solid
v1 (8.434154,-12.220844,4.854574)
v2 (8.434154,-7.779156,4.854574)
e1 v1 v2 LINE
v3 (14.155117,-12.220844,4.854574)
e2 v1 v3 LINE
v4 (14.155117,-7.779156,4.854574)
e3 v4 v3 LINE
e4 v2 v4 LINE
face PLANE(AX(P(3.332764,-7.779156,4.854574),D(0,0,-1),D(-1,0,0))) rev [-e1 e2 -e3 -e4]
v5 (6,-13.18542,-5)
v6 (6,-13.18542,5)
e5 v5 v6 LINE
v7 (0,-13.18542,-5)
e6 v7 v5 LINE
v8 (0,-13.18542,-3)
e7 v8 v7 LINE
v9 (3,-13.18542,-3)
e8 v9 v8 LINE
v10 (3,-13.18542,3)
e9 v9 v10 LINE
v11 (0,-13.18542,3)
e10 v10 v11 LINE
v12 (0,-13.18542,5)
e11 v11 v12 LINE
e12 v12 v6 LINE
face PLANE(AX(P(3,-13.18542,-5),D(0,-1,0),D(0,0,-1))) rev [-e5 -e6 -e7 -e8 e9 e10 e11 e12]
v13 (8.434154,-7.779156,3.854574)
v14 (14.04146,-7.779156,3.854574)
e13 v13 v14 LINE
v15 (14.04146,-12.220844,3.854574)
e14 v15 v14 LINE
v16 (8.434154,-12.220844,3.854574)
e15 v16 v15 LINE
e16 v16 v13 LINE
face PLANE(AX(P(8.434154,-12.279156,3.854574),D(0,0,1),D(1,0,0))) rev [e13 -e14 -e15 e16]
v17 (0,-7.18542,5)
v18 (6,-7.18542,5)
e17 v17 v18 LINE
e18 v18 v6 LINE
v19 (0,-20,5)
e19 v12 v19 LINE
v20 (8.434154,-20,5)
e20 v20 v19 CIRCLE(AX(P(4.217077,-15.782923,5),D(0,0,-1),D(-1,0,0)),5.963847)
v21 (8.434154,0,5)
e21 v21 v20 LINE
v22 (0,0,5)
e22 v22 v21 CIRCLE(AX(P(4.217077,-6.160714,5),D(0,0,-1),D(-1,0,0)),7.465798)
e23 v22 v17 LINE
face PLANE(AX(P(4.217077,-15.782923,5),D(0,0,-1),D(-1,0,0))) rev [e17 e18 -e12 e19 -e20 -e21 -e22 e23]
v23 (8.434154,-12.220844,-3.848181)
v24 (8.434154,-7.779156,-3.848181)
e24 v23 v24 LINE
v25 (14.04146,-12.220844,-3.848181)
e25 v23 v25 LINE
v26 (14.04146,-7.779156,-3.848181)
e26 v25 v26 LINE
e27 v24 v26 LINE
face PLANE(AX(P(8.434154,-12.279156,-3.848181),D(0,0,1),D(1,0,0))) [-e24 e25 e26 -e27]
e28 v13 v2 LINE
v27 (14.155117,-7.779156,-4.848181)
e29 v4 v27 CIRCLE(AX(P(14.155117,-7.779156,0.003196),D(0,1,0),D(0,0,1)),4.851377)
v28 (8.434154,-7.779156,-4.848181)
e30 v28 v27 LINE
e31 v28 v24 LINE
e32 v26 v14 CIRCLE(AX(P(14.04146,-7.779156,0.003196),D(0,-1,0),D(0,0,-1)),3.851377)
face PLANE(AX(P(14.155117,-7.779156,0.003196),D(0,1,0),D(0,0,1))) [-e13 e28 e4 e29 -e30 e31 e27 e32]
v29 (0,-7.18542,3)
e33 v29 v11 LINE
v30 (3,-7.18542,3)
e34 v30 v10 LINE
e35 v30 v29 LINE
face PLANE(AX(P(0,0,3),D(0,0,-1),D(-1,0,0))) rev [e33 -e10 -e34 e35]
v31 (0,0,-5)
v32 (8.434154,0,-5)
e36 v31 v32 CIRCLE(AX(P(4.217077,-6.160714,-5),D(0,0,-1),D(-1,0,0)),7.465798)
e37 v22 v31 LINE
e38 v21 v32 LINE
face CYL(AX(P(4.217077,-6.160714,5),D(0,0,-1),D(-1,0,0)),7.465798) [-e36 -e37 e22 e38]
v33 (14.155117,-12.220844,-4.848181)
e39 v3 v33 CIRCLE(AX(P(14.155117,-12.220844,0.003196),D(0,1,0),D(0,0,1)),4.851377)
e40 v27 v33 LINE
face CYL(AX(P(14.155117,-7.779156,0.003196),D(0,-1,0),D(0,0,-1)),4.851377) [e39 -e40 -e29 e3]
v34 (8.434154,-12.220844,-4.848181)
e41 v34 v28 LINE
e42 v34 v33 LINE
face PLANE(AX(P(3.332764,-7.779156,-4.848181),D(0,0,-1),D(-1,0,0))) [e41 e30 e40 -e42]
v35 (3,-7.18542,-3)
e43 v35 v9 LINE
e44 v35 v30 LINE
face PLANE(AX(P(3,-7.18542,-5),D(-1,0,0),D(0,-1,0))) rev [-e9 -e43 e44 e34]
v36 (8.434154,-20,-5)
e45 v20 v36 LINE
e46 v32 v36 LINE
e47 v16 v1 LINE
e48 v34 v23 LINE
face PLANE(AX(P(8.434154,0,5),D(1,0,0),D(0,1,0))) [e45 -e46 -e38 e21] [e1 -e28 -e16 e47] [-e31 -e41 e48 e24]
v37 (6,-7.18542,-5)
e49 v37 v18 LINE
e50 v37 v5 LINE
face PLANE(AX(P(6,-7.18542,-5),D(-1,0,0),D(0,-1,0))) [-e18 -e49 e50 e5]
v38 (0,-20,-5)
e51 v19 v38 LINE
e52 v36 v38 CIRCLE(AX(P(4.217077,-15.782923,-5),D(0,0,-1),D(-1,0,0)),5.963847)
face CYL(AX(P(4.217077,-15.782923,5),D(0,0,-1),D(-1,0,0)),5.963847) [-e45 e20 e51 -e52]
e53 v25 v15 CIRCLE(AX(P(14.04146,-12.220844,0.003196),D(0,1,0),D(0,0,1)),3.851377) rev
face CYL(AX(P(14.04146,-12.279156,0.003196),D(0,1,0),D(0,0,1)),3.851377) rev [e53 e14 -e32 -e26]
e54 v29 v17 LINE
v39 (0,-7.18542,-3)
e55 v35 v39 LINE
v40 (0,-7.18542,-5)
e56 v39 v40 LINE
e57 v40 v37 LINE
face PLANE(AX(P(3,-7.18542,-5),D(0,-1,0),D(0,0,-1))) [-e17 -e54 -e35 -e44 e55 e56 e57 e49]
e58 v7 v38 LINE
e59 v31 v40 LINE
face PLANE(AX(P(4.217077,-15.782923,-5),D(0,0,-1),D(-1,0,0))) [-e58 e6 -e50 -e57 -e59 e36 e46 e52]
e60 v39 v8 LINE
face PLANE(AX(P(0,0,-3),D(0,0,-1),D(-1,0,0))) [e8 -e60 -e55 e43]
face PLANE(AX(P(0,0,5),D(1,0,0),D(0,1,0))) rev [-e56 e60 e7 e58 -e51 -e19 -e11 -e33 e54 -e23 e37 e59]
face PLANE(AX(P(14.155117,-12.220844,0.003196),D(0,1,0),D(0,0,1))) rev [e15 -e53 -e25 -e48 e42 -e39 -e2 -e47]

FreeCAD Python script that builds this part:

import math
import FreeCAD as App
import Part
import Sketcher
from FreeCAD import Vector


def add_polygon(sketch, points):
    """Adds a closed chain of lines whose ends are joined by coincident constraints."""
    first, n = sketch.GeometryCount, len(points)
    for a, b in zip(points, points[1:] + points[:1]):
        sketch.addGeometry(Part.LineSegment(App.Vector(*a, 0), App.Vector(*b, 0)), False)
    for i in range(n):
        sketch.addConstraint(Sketcher.Constraint("Coincident", first + i, 2, first + (i + 1) % n, 1))

doc = App.newDocument("Part")
body = doc.addObject("PartDesign::Body", "Body")

sketch1 = body.newObject("Sketcher::SketchObject", "Sketch")
sketch1.AttachmentSupport = (doc.getObject("XY_Plane"), [""])
sketch1.MapMode = "FlatFace"
sketch1.addGeometry([
    Part.LineSegment(Vector(0, 0, 0), Vector(0, -20, 0)),
    Part.ArcOfCircle(Part.Circle(Vector(4.217077, -15.782923, 0), Vector(0, 0, 1), 5.963847), math.radians(-135), math.radians(-45)),
    Part.LineSegment(Vector(8.434154, -20, 0), Vector(8.434154, 0, 0)),
    Part.ArcOfCircle(Part.Circle(Vector(4.217077, -6.160714, 0), Vector(0, 0, 1), 7.465798), math.radians(55.607929), math.radians(124.392071)),
], False)
sketch1.addConstraint([
    Sketcher.Constraint("Coincident", 0, 2, 1, 1),
    Sketcher.Constraint("Coincident", 1, 2, 2, 1),
    Sketcher.Constraint("Coincident", 2, 2, 3, 1),
    Sketcher.Constraint("Coincident", 3, 2, 0, 1),
    Sketcher.Constraint("Vertical", 0),
    Sketcher.Constraint("Vertical", 2),
    Sketcher.Constraint("Coincident", 3, 2, -1, 1),
    Sketcher.Constraint("PointOnObject", 2, 2, -1),
    Sketcher.Constraint("Horizontal", 0, 2, 1, 2),
    Sketcher.Constraint("DistanceY", 0, 2, 0, 1, 20.0),
    Sketcher.Constraint("Radius", 1, 5.963847),
    Sketcher.Constraint("Radius", 3, 7.465798),
    Sketcher.Constraint("DistanceY", 1, 3, 3, 3, 9.622209),
])
pad1 = body.newObject("PartDesign::Pad", "Pad")
pad1.Profile = sketch1
pad1.Length = 10
pad1.Midplane = True

sketch2 = body.newObject("Sketcher::SketchObject", "Sketch001")
sketch2.AttachmentSupport = (doc.getObject("XZ_Plane"), [""])
sketch2.MapMode = "FlatFace"
sketch2.AttachmentOffset = App.Placement(Vector(0, 0, 10), App.Rotation())
sketch2.addGeometry([
    Part.LineSegment(Vector(14.155117, -4.848181, 0), Vector(3.332764, -4.848181, 0)),
    Part.LineSegment(Vector(3.332764, -4.848181, 0), Vector(3.332764, 4.854574, 0)),
    Part.LineSegment(Vector(3.332764, 4.854574, 0), Vector(14.155117, 4.854574, 0)),
    Part.ArcOfCircle(Part.Circle(Vector(14.155117, 0.003196, 0), Vector(0, 0, 1), 4.851377), math.radians(-90), math.radians(90)),
], False)
sketch2.addConstraint([
    Sketcher.Constraint("Coincident", 0, 2, 1, 1),
    Sketcher.Constraint("Coincident", 1, 2, 2, 1),
    Sketcher.Constraint("Tangent", 2, 2, 3, 2),
    Sketcher.Constraint("Tangent", 3, 1, 0, 1),
    Sketcher.Constraint("Horizontal", 0),
    Sketcher.Constraint("Vertical", 1),
    Sketcher.Constraint("Horizontal", 2),
    Sketcher.Constraint("Radius", 3, 4.851377),
    Sketcher.Constraint("DistanceX", 0, 2, 0, 1, 10.822352),
    Sketcher.Constraint("DistanceY", 0, 2, -1, 1, 4.848181),
    Sketcher.Constraint("DistanceX", -1, 1, 3, 3, 14.155117),
])
pad2 = body.newObject("PartDesign::Pad", "Pad001")
pad2.Profile = sketch2
pad2.Length = 4.441689
pad2.Midplane = True

sketch3 = body.newObject("Sketcher::SketchObject", "Sketch002")
sketch3.AttachmentSupport = (doc.getObject("XZ_Plane"), [""])
sketch3.MapMode = "FlatFace"
sketch3.AttachmentOffset = App.Placement(Vector(0, 0, 7.779156), App.Rotation())
sketch3.addGeometry([
    Part.LineSegment(Vector(14.04146, -3.848181, 0), Vector(8.434154, -3.848181, 0)),
    Part.LineSegment(Vector(8.434154, -3.848181, 0), Vector(8.434154, 3.854574, 0)),
    Part.LineSegment(Vector(8.434154, 3.854574, 0), Vector(14.04146, 3.854574, 0)),
    Part.ArcOfCircle(Part.Circle(Vector(14.04146, 0.003196, 0), Vector(0, 0, 1), 3.851377), math.radians(-90), math.radians(90)),
], False)
sketch3.addConstraint([
    Sketcher.Constraint("Coincident", 0, 2, 1, 1),
    Sketcher.Constraint("Coincident", 1, 2, 2, 1),
    Sketcher.Constraint("Tangent", 2, 2, 3, 2),
    Sketcher.Constraint("Tangent", 3, 1, 0, 1),
    Sketcher.Constraint("Horizontal", 0),
    Sketcher.Constraint("Vertical", 1),
    Sketcher.Constraint("Horizontal", 2),
    Sketcher.Constraint("Radius", 3, 3.851377),
    Sketcher.Constraint("DistanceX", 0, 2, 0, 1, 5.607306),
    Sketcher.Constraint("DistanceX", -1, 1, 3, 3, 14.04146),
    Sketcher.Constraint("DistanceY", 0, 2, -1, 1, 3.848181),
])
pocket1 = body.newObject("PartDesign::Pocket", "Pocket")
pocket1.Profile = sketch3
pocket1.Length = 4.5
pocket1.Reversed = True

sketch4 = body.newObject("Sketcher::SketchObject", "Sketch003")
sketch4.AttachmentSupport = (doc.getObject("XY_Plane"), [""])
sketch4.MapMode = "FlatFace"
sketch4.AttachmentOffset = App.Placement(Vector(0, 0, 5), App.Rotation())
add_polygon(sketch4, [(3, -7.18542), (3, -13.18542), (6, -13.18542), (6, -7.18542)])
sketch4.addConstraint([
    Sketcher.Constraint("Vertical", 0),
    Sketcher.Constraint("Horizontal", 1),
    Sketcher.Constraint("Vertical", 2),
    Sketcher.Constraint("Horizontal", 3),
    Sketcher.Constraint("DistanceX", 1, 1, 1, 2, 3.0),
    Sketcher.Constraint("DistanceY", 0, 2, 0, 1, 6.0),
    Sketcher.Constraint("DistanceX", -1, 1, 0, 2, 3.0),
    Sketcher.Constraint("DistanceY", 0, 2, -1, 1, 13.18542),
])
pocket2 = body.newObject("PartDesign::Pocket", "Pocket001")
pocket2.Profile = sketch4
pocket2.Length = 10

sketch5 = body.newObject("Sketcher::SketchObject", "Sketch004")
sketch5.AttachmentSupport = (doc.getObject("XY_Plane"), [""])
sketch5.MapMode = "FlatFace"
sketch5.AttachmentOffset = App.Placement(Vector(0, 0, -5), App.Rotation())
add_polygon(sketch5, [(3, -7.18542), (3, -13.18542), (0, -13.18542), (0, -7.18542)])
sketch5.addConstraint([
    Sketcher.Constraint("Vertical", 0),
    Sketcher.Constraint("Horizontal", 1),
    Sketcher.Constraint("Vertical", 2),
    Sketcher.Constraint("Horizontal", 3),
    Sketcher.Constraint("PointOnObject", 1, 2, -2),
    Sketcher.Constraint("DistanceX", 1, 2, 1, 1, 3.0),
    Sketcher.Constraint("DistanceY", 0, 2, 0, 1, 6.0),
    Sketcher.Constraint("DistanceY", 0, 2, -1, 1, 13.18542),
])
pocket3 = body.newObject("PartDesign::Pocket", "Pocket002")
pocket3.Profile = sketch5
pocket3.Length = 2
pocket3.Reversed = True

sketch6 = body.newObject("Sketcher::SketchObject", "Sketch005")
sketch6.AttachmentSupport = (doc.getObject("XY_Plane"), [""])
sketch6.MapMode = "FlatFace"
sketch6.AttachmentOffset = App.Placement(Vector(0, 0, 5), App.Rotation())
add_polygon(sketch6, [(0, -7.18542), (0, -13.18542), (3, -13.18542), (3, -7.18542)])
sketch6.addConstraint([
    Sketcher.Constraint("Vertical", 0),
    Sketcher.Constraint("Horizontal", 1),
    Sketcher.Constraint("Vertical", 2),
    Sketcher.Constraint("Horizontal", 3),
    Sketcher.Constraint("PointOnObject", 0, 2, -2),
    Sketcher.Constraint("DistanceX", 1, 1, 1, 2, 3.0),
    Sketcher.Constraint("DistanceY", 0, 2, 0, 1, 6.0),
    Sketcher.Constraint("DistanceY", 0, 2, -1, 1, 13.18542),
])
pocket4 = body.newObject("PartDesign::Pocket", "Pocket003")
pocket4.Profile = sketch6
pocket4.Length = 2

doc.recompute()
